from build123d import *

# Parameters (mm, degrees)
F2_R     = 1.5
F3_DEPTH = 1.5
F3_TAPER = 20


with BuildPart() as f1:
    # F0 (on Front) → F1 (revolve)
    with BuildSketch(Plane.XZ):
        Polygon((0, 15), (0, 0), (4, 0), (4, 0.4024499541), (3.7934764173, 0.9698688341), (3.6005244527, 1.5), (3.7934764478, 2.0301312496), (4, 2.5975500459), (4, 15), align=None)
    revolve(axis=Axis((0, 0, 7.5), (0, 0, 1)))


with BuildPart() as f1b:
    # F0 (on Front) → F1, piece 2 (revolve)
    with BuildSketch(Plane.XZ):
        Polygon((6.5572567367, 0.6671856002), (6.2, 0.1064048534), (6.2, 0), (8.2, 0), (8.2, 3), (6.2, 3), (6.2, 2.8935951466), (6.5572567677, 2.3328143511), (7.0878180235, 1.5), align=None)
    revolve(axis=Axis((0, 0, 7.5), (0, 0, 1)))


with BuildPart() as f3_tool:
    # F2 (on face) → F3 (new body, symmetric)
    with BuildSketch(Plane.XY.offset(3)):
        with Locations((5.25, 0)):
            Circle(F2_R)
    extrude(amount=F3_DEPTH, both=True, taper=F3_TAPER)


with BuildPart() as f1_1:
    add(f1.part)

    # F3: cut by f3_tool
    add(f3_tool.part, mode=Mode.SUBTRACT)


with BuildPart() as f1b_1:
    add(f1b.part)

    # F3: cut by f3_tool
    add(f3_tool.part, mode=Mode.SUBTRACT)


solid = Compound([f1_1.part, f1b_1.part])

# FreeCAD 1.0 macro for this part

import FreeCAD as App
import Part
import Sketcher
Q = App.Units.Quantity

doc = App.newDocument("Part")
params = doc.addObject("Spreadsheet::Sheet", "Params")
for row, (alias, value) in enumerate([
    ("sketch1_width", "4 mm"),
    ("sketch1_height", "15 mm"),
    ("revolution_angle", "360 deg"),
    ("sketch2_width", "2 mm"),
    ("sketch2_height", "3 mm"),
    ("revolution2_angle", "360 deg"),
    ("sketch3_diameter", "3 mm"),
    ("pad1_length", "3 mm"),
    ("pad1_taper", "-20 deg"),
], start=1):
    params.set(f"A{row}", alias)
    params.set(f"B{row}", "=" + value)
    params.setAlias(f"B{row}", alias)

body = doc.addObject("PartDesign::Body", "Body")

# Sketch on XZ plane
sketch1 = body.newObject("Sketcher::SketchObject", "Sketch")
sketch1.AttachmentSupport = (doc.getObject("XZ_Plane"), [""])
sketch1.MapMode = "FlatFace"
sketch1.addGeometry([
    Part.LineSegment(App.Vector(0, 15, 0), App.Vector(0, 0, 0)),  # 0
    Part.LineSegment(App.Vector(0, 0, 0), App.Vector(4, 0, 0)),  # 1
    Part.LineSegment(App.Vector(4, 0, 0), App.Vector(4, 0.40245, 0)),  # 2
    Part.LineSegment(App.Vector(4, 0.40245, 0), App.Vector(3.793476, 0.969869, 0)),  # 3
    Part.LineSegment(App.Vector(3.793476, 0.969869, 0), App.Vector(3.600524, 1.5, 0)),  # 4
    Part.LineSegment(App.Vector(3.600524, 1.5, 0), App.Vector(3.793476, 2.030131, 0)),  # 5
    Part.LineSegment(App.Vector(3.793476, 2.030131, 0), App.Vector(4, 2.59755, 0)),  # 6
    Part.LineSegment(App.Vector(4, 2.59755, 0), App.Vector(4, 15, 0)),  # 7
    Part.LineSegment(App.Vector(4, 15, 0), App.Vector(0, 15, 0)),  # 8
], False)
sketch1.addConstraint([
    Sketcher.Constraint("Coincident", 0, 2, 1, 1),
    Sketcher.Constraint("Coincident", 1, 2, 2, 1),
    Sketcher.Constraint("Coincident", 2, 2, 3, 1),
    Sketcher.Constraint("Coincident", 3, 2, 4, 1),
    Sketcher.Constraint("Coincident", 4, 2, 5, 1),
    Sketcher.Constraint("Coincident", 5, 2, 6, 1),
    Sketcher.Constraint("Coincident", 6, 2, 7, 1),
    Sketcher.Constraint("Coincident", 7, 2, 8, 1),
    Sketcher.Constraint("Coincident", 8, 2, 0, 1),
    Sketcher.Constraint("Vertical", 0),
    Sketcher.Constraint("Horizontal", 1),
    Sketcher.Constraint("Vertical", 2),
    Sketcher.Constraint("Vertical", 7),
    Sketcher.Constraint("Horizontal", 8),
    Sketcher.Constraint("Coincident", 0, 2, -1, 1),
    Sketcher.Constraint("Parallel", 3, 4),
    Sketcher.Constraint("Parallel", 5, 6),
    Sketcher.Constraint("Vertical", 3, 2, 5, 2),
    Sketcher.Constraint("Vertical", 2, 2, 6, 2),
    Sketcher.Constraint("Equal", 4, 5),
    Sketcher.Constraint("DistanceX", 1, 1, 1, 2, Q("4 mm")),
    Sketcher.Constraint("DistanceY", 0, 2, 0, 1, Q("15 mm")),
    Sketcher.Constraint("Angle", 3, Q("110 deg")),
    Sketcher.Constraint("DistanceY", -1, 1, 4, 2, Q("1.5 mm")),
    Sketcher.Constraint("DistanceY", 2, 1, 2, 2, Q("0.40245 mm")),
    Sketcher.Constraint("DistanceY", -1, 1, 3, 2, Q("0.969869 mm")),
])
sketch1.setExpression("Constraints[20]", "Params.sketch1_width")
sketch1.setExpression("Constraints[21]", "Params.sketch1_height")
revolution = body.newObject("PartDesign::Revolution", "Revolution")
revolution.Profile = sketch1
revolution.ReferenceAxis = (sketch1, ["V_Axis"])
revolution.setExpression("Angle", "Params.revolution_angle")
body2 = doc.addObject("PartDesign::Body", "Body001")

# Sketch on XZ plane
sketch2 = body2.newObject("Sketcher::SketchObject", "Sketch001")
sketch2.AttachmentSupport = (doc.getObject("XZ_Plane001"), [""])
sketch2.MapMode = "FlatFace"
sketch2.addGeometry([
    Part.LineSegment(App.Vector(6.557257, 0.667186, 0), App.Vector(6.2, 0.106405, 0)),  # 0
    Part.LineSegment(App.Vector(6.2, 0.106405, 0), App.Vector(6.2, 0, 0)),  # 1
    Part.LineSegment(App.Vector(6.2, 0, 0), App.Vector(8.2, 0, 0)),  # 2
    Part.LineSegment(App.Vector(8.2, 0, 0), App.Vector(8.2, 3, 0)),  # 3
    Part.LineSegment(App.Vector(8.2, 3, 0), App.Vector(6.2, 3, 0)),  # 4
    Part.LineSegment(App.Vector(6.2, 3, 0), App.Vector(6.2, 2.893595, 0)),  # 5
    Part.LineSegment(App.Vector(6.2, 2.893595, 0), App.Vector(6.557257, 2.332814, 0)),  # 6
    Part.LineSegment(App.Vector(6.557257, 2.332814, 0), App.Vector(7.087818, 1.5, 0)),  # 7
    Part.LineSegment(App.Vector(7.087818, 1.5, 0), App.Vector(6.557257, 0.667186, 0)),  # 8
], False)
sketch2.addConstraint([
    Sketcher.Constraint("Coincident", 0, 2, 1, 1),
    Sketcher.Constraint("Coincident", 1, 2, 2, 1),
    Sketcher.Constraint("Coincident", 2, 2, 3, 1),
    Sketcher.Constraint("Coincident", 3, 2, 4, 1),
    Sketcher.Constraint("Coincident", 4, 2, 5, 1),
    Sketcher.Constraint("Coincident", 5, 2, 6, 1),
    Sketcher.Constraint("Coincident", 6, 2, 7, 1),
    Sketcher.Constraint("Coincident", 7, 2, 8, 1),
    Sketcher.Constraint("Coincident", 8, 2, 0, 1),
    Sketcher.Constraint("Vertical", 1),
    Sketcher.Constraint("Horizontal", 2),
    Sketcher.Constraint("Vertical", 3),
    Sketcher.Constraint("Horizontal", 4),
    Sketcher.Constraint("Vertical", 5),
    Sketcher.Constraint("PointOnObject", 1, 2, -1),
    Sketcher.Constraint("Parallel", 6, 7),
    Sketcher.Constraint("Parallel", 0, 8),
    Sketcher.Constraint("Vertical", 1, 2, 4, 2),
    Sketcher.Constraint("Vertical", 6, 2, 8, 2),
    Sketcher.Constraint("Equal", 1, 5),
    Sketcher.Constraint("Equal", 0, 6),
    Sketcher.Constraint("DistanceX", 2, 1, 2, 2, Q("2 mm")),
    Sketcher.Constraint("DistanceY", 3, 1, 3, 2, Q("3 mm")),
    Sketcher.Constraint("Angle", 0, Q("-122.5 deg")),
    Sketcher.Constraint("DistanceX", -1, 1, 0, 2, Q("6.2 mm")),
    Sketcher.Constraint("Distance", 0, Q("0.664912 mm")),
    Sketcher.Constraint("Distance", 7, Q("0.987459 mm")),
])
sketch2.setExpression("Constraints[21]", "Params.sketch2_width")
sketch2.setExpression("Constraints[22]", "Params.sketch2_height")
revolution2 = body2.newObject("PartDesign::Revolution", "Revolution001")
revolution2.Profile = sketch2
revolution2.ReferenceAxis = (sketch2, ["V_Axis"])
revolution2.setExpression("Angle", "Params.revolution2_angle")
body3 = doc.addObject("PartDesign::Body", "Body002")

# Sketch on XY plane
sketch3 = body3.newObject("Sketcher::SketchObject", "Sketch002")
sketch3.AttachmentSupport = (doc.getObject("XY_Plane002"), [""])
sketch3.MapMode = "FlatFace"
sketch3.AttachmentOffset = App.Placement(App.Vector(0, 0, 3), App.Rotation())
sketch3.addGeometry(Part.Circle(App.Vector(5.25, 0, 0), App.Vector(0, 0, 1), 1.5), False)
sketch3.addConstraint([
    Sketcher.Constraint("PointOnObject", 0, 3, -1),
    Sketcher.Constraint("Diameter", 0, Q("3 mm")),
    Sketcher.Constraint("DistanceX", -1, 1, 0, 3, Q("5.25 mm")),
])
sketch3.setExpression("Constraints[1]", "Params.sketch3_diameter")
pad1 = body3.newObject("PartDesign::Pad", "Pad")
pad1.Profile = sketch3
pad1.setExpression("Length", "Params.pad1_length")
pad1.Midplane = True
pad1.setExpression("TaperAngle", "Params.pad1_taper")
doc.recompute()

body4 = doc.addObject("PartDesign::Body", "Body003")
body4.BaseFeature = body3
boolean = body.newObject("PartDesign::Boolean", "Boolean")
boolean.Type = "Cut"
boolean.addObjects([body4])
doc.recompute()

boolean2 = body2.newObject("PartDesign::Boolean", "Boolean001")
boolean2.Type = "Cut"
boolean2.addObjects([body3])

doc.recompute()
